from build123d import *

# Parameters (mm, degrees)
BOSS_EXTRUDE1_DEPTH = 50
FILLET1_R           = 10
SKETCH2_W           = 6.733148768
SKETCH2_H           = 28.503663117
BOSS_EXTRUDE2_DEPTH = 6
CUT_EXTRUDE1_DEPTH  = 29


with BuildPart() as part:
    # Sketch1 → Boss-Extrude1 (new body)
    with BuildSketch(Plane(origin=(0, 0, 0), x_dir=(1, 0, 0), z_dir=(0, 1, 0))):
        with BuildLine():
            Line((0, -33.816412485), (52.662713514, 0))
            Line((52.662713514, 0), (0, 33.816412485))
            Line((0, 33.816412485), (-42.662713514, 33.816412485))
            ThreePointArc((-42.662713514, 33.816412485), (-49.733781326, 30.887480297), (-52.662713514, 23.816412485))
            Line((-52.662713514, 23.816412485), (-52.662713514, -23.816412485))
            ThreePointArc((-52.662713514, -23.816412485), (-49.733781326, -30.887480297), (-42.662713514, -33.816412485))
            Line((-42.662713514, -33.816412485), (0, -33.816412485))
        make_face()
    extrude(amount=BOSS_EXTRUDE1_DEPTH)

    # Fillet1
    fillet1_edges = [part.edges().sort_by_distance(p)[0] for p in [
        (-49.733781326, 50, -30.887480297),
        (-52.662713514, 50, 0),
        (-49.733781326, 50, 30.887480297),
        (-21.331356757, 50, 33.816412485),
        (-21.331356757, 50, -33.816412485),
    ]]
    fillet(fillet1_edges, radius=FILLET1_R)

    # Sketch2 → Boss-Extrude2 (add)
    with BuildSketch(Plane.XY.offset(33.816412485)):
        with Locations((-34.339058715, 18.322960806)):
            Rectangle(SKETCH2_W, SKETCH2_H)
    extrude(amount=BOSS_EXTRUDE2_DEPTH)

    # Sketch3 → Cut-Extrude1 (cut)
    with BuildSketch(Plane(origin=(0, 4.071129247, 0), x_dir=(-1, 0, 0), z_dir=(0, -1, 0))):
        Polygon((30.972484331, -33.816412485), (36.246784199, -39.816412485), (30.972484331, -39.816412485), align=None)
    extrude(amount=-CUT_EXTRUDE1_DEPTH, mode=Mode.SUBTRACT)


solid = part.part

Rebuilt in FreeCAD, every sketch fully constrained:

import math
import FreeCAD as App
import Part
import Sketcher


def edges_at(feature, points):
    """Names of the edges that pass closest to the given points."""
    edges = feature.Shape.Edges
    near = lambda p: min(range(len(edges)), key=lambda i: edges[i].distToShape(Part.Vertex(*p))[0])
    return sorted({f"Edge{near(p) + 1}" for p in points})

doc = App.newDocument("Part")
params = doc.addObject("Spreadsheet::Sheet", "Params")
for row, (alias, value) in enumerate([
    ("sketch1_radius", "10 mm"),
    ("pad1_length", "50 mm"),
    ("fillet_radius", "10 mm"),
    ("pad2_length", "6 mm"),
    ("sketch3_height", "6 mm"),
    ("pocket1_length", "29 mm"),
], start=1):
    params.set(f"A{row}", alias)
    params.set(f"B{row}", "=" + value)
    params.setAlias(f"B{row}", alias)

body = doc.addObject("PartDesign::Body", "Body")

sketch1 = body.newObject("Sketcher::SketchObject", "Sketch")
sketch1.AttachmentSupport = (doc.getObject("XZ_Plane"), [""])
sketch1.MapMode = "FlatFace"
sketch1.addGeometry([
    Part.LineSegment(App.Vector(0, 34, 0), App.Vector(53, 0, 0)),
    Part.LineSegment(App.Vector(53, 0, 0), App.Vector(0, -34, 0)),
    Part.LineSegment(App.Vector(0, -34, 0), App.Vector(-43, -34, 0)),
    Part.ArcOfCircle(Part.Circle(App.Vector(-43, -24, 0), App.Vector(0, 0, 1), 10), math.radians(180), math.radians(270)),
    Part.LineSegment(App.Vector(-53, -24, 0), App.Vector(-53, 24, 0)),
    Part.ArcOfCircle(Part.Circle(App.Vector(-43, 24, 0), App.Vector(0, 0, 1), 10), math.radians(90), math.radians(180)),
    Part.LineSegment(App.Vector(-43, 34, 0), App.Vector(0, 34, 0)),
], False)
sketch1.addConstraint([
    Sketcher.Constraint("Coincident", 0, 2, 1, 1),
    Sketcher.Constraint("Coincident", 1, 2, 2, 1),
    Sketcher.Constraint("Tangent", 2, 2, 3, 2),
    Sketcher.Constraint("Tangent", 3, 1, 4, 1),
    Sketcher.Constraint("Tangent", 4, 2, 5, 2),
    Sketcher.Constraint("Tangent", 5, 1, 6, 1),
    Sketcher.Constraint("Coincident", 6, 2, 0, 1),
    Sketcher.Constraint("Horizontal", 2),
    Sketcher.Constraint("Vertical", 4),
    Sketcher.Constraint("Horizontal", 6),
    Sketcher.Constraint("Equal", 3, 5),
    Sketcher.Constraint("Symmetric", 1, 2, 6, 2, -1, 1),
    Sketcher.Constraint("PointOnObject", 0, 2, -1),
    Sketcher.Constraint("PointOnObject", 1, 2, -2),
    Sketcher.Constraint("Radius", 3, 10.0),
    Sketcher.Constraint("Distance", 0, 62.585231),
    Sketcher.Constraint("DistanceX", 2, 2, 2, 1, 42.662714),
    Sketcher.Constraint("DistanceY", 4, 1, 4, 2, 47.632825),
])
sketch1.setExpression("Constraints[14]", "Params.sketch1_radius")
pad1 = body.newObject("PartDesign::Pad", "Pad")
pad1.Profile = sketch1
pad1.setExpression("Length", "Params.pad1_length")
pad1.Reversed = True
doc.recompute()

fillet = body.newObject("PartDesign::Fillet", "Fillet")
fillet.Base = (pad1, edges_at(pad1, [
    (-49.734, 50, -30.887),
    (-52.663, 50, 0),
    (-49.734, 50, 30.887),
    (-21.331, 50, 33.816),
    (-21.331, 50, -33.816),
]))
fillet.setExpression("Radius", "Params.fillet_radius")

sketch2 = body.newObject("Sketcher::SketchObject", "Sketch001")
sketch2.AttachmentSupport = (doc.getObject("XY_Plane"), [""])
sketch2.MapMode = "FlatFace"
sketch2.AttachmentOffset = App.Placement(App.Vector(0, 0, 33.816412), App.Rotation())
sketch2.addGeometry([
    Part.LineSegment(App.Vector(-38, 33, 0), App.Vector(-38, 4, 0)),
    Part.LineSegment(App.Vector(-38, 4, 0), App.Vector(-31, 4, 0)),
    Part.LineSegment(App.Vector(-31, 4, 0), App.Vector(-31, 33, 0)),
    Part.LineSegment(App.Vector(-31, 33, 0), App.Vector(-38, 33, 0)),
], False)
sketch2.addConstraint([
    Sketcher.Constraint("Coincident", 0, 2, 1, 1),
    Sketcher.Constraint("Coincident", 1, 2, 2, 1),
    Sketcher.Constraint("Coincident", 2, 2, 3, 1),
    Sketcher.Constraint("Coincident", 3, 2, 0, 1),
    Sketcher.Constraint("Vertical", 0),
    Sketcher.Constraint("Horizontal", 1),
    Sketcher.Constraint("Vertical", 2),
    Sketcher.Constraint("Horizontal", 3),
    Sketcher.Constraint("DistanceX", 1, 1, 1, 2, 6.733149),
    Sketcher.Constraint("DistanceY", 0, 2, 0, 1, 28.503663),
    Sketcher.Constraint("DistanceY", -1, 1, 0, 2, 4.071129),
    Sketcher.Constraint("DistanceX", 0, 2, -1, 1, 37.705633),
])
pad2 = body.newObject("PartDesign::Pad", "Pad001")
pad2.Profile = sketch2
pad2.setExpression("Length", "Params.pad2_length")

sketch3 = body.newObject("Sketcher::SketchObject", "Sketch002")
sketch3.AttachmentSupport = (doc.getObject("XZ_Plane"), [""])
sketch3.MapMode = "FlatFace"
sketch3.AttachmentOffset = App.Placement(App.Vector(0, 0, -4.071129), App.Rotation())
sketch3.addGeometry([
    Part.LineSegment(App.Vector(-36, 40, 0), App.Vector(-31, 34, 0)),
    Part.LineSegment(App.Vector(-31, 34, 0), App.Vector(-31, 40, 0)),
    Part.LineSegment(App.Vector(-31, 40, 0), App.Vector(-36, 40, 0)),
], False)
sketch3.addConstraint([
    Sketcher.Constraint("Coincident", 0, 2, 1, 1),
    Sketcher.Constraint("Coincident", 1, 2, 2, 1),
    Sketcher.Constraint("Coincident", 2, 2, 0, 1),
    Sketcher.Constraint("Vertical", 1),
    Sketcher.Constraint("Horizontal", 2),
    Sketcher.Constraint("DistanceY", 1, 1, 1, 2, 6.0),
    Sketcher.Constraint("DistanceX", 2, 2, 2, 1, 5.2743),
    Sketcher.Constraint("DistanceX", 0, 2, -1, 1, 30.972484),
    Sketcher.Constraint("DistanceY", -1, 1, 0, 2, 33.816412),
])
sketch3.setExpression("Constraints[5]", "Params.sketch3_height")
pocket1 = body.newObject("PartDesign::Pocket", "Pocket")
pocket1.Profile = sketch3
pocket1.setExpression("Length", "Params.pocket1_length")

doc.recompute()
